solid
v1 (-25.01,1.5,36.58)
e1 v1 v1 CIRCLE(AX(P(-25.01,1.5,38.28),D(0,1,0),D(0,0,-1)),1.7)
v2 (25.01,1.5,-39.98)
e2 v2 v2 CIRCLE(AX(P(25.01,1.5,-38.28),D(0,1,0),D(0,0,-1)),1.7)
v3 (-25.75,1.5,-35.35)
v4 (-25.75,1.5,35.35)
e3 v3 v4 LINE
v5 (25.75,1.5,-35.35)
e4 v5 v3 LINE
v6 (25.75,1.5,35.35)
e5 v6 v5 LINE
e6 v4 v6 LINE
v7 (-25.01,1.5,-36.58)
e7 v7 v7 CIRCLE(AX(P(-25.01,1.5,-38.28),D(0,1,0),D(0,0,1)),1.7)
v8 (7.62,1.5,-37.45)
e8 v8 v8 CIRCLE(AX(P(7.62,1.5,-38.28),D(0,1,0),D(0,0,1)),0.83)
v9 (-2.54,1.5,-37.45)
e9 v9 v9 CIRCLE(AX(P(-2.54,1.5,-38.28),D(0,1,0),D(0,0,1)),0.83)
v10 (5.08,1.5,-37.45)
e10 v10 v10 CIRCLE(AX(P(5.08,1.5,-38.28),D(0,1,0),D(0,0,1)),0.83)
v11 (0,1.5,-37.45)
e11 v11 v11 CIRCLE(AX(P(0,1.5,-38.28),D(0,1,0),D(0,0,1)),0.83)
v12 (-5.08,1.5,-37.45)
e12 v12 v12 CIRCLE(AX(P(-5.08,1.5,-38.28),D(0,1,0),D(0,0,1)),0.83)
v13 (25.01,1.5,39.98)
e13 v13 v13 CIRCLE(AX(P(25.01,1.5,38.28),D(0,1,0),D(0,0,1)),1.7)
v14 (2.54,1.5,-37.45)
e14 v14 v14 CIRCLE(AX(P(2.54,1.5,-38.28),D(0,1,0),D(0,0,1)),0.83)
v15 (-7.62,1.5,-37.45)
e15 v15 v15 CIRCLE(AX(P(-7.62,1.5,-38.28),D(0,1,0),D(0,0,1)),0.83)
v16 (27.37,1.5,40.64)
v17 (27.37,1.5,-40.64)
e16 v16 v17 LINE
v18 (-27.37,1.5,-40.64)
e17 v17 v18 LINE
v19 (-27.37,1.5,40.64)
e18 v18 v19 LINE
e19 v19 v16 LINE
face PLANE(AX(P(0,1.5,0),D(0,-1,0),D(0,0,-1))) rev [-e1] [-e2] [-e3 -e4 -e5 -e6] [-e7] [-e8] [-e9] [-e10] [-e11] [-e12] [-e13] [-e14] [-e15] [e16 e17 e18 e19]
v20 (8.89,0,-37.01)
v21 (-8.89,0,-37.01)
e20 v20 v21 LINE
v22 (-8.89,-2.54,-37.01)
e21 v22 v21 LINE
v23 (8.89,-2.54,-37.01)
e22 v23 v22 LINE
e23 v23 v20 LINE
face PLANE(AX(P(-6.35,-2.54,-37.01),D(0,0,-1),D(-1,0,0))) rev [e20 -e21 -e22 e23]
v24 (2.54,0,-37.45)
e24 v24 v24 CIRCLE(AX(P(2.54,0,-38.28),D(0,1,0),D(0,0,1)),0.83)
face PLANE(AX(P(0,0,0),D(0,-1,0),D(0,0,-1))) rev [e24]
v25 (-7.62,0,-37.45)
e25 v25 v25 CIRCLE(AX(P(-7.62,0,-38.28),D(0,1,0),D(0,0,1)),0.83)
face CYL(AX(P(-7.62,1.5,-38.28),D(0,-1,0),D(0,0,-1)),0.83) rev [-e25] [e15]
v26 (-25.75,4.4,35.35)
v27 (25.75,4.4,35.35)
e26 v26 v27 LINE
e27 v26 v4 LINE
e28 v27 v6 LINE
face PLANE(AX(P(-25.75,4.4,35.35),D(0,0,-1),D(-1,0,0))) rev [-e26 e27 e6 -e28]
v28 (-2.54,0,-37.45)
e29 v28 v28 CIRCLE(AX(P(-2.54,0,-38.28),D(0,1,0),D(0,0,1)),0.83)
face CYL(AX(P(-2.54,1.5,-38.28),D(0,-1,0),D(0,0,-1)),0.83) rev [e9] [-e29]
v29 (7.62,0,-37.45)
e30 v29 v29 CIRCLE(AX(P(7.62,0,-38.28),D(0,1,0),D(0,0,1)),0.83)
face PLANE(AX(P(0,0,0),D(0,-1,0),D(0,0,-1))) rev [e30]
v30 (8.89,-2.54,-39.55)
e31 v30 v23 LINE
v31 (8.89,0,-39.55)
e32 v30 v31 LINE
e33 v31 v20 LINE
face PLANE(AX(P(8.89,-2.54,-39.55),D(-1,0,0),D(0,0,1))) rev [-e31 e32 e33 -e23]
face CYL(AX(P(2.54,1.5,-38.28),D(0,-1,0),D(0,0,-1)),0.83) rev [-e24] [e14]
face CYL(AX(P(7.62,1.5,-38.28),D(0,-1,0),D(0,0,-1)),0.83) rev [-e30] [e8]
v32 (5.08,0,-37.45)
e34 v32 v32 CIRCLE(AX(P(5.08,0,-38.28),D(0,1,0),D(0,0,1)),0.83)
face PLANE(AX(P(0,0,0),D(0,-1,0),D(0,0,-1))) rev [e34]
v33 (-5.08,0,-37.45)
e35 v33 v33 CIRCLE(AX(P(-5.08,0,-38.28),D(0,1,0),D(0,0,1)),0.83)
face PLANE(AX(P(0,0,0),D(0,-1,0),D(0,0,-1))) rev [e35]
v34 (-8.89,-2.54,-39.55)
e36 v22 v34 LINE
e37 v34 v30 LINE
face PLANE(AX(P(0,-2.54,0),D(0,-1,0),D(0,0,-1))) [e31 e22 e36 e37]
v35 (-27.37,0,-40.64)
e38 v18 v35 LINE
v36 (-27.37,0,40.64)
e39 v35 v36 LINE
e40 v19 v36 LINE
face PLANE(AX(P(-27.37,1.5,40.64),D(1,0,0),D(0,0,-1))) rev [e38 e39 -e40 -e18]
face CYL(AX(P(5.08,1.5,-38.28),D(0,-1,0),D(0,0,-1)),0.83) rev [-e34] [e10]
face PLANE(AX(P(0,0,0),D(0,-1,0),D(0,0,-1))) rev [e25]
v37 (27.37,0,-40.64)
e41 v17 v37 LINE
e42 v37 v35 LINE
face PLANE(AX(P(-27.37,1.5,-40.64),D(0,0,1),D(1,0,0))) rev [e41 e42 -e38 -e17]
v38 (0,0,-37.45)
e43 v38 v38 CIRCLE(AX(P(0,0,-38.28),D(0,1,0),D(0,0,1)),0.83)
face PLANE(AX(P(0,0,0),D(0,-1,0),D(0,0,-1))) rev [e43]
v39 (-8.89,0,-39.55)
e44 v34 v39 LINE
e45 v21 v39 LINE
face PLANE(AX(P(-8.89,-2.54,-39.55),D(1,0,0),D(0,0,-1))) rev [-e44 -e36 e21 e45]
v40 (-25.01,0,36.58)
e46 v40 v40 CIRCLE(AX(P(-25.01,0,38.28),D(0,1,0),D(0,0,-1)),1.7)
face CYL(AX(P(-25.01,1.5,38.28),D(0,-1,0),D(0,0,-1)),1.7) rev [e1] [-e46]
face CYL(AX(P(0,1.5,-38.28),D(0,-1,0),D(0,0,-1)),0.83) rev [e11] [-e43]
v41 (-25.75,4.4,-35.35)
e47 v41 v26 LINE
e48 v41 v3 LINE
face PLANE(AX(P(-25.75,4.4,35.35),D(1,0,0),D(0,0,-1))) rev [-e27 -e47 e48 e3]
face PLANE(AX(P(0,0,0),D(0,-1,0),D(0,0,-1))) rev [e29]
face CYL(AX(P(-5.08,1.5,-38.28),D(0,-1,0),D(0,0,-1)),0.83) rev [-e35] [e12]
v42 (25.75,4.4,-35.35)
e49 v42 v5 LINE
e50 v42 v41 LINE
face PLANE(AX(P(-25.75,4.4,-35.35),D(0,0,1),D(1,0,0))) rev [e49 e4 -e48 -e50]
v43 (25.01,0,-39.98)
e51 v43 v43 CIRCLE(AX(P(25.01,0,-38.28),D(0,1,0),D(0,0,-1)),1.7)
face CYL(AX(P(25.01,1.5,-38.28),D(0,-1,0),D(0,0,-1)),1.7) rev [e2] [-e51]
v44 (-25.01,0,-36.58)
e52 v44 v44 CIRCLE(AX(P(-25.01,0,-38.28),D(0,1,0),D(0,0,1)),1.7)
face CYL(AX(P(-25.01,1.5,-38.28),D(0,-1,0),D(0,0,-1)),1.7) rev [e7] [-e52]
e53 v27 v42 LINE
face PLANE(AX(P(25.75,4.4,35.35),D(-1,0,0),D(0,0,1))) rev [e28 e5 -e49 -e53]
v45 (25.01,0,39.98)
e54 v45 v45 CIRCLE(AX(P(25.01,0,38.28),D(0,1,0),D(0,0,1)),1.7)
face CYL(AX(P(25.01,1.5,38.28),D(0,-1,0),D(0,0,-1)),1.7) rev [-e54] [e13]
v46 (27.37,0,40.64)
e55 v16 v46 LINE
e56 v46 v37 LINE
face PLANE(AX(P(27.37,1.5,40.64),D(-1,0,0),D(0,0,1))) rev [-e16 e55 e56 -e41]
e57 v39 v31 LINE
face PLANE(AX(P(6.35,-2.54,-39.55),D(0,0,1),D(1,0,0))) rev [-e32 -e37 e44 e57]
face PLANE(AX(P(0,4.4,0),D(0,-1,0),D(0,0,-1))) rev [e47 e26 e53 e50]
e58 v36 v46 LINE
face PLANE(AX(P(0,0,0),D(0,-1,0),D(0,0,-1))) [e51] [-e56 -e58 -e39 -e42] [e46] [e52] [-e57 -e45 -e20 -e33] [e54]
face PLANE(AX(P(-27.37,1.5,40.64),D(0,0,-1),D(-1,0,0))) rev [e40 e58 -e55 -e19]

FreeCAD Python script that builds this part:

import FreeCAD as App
import Part
import Sketcher
from FreeCAD import Vector


def add_polygon(sketch, points):
    """Adds a closed chain of lines whose ends are joined by coincident constraints."""
    first, n = sketch.GeometryCount, len(points)
    for a, b in zip(points, points[1:] + points[:1]):
        sketch.addGeometry(Part.LineSegment(App.Vector(*a, 0), App.Vector(*b, 0)), False)
    for i in range(n):
        sketch.addConstraint(Sketcher.Constraint("Coincident", first + i, 2, first + (i + 1) % n, 1))

doc = App.newDocument("Part")
params = doc.addObject("Spreadsheet::Sheet", "Params")
for row, (alias, value) in enumerate([
    ("sketch1_diameter", "3.4 mm"),
    ("sketch1_diameter2", "1.66 mm"),
    ("sketch1_width", "54.74 mm"),
    ("sketch1_height", "81.28 mm"),
    ("pad1_length", "1.5 mm"),
    ("sketch2_width", "51.5 mm"),
    ("sketch2_height", "70.7 mm"),
    ("pad2_length", "2.9 mm"),
    ("sketch3_width", "17.78 mm"),
    ("sketch3_height", "2.54 mm"),
    ("pad3_length", "2.54 mm"),
], start=1):
    params.set(f"A{row}", alias)
    params.set(f"B{row}", "=" + value)
    params.setAlias(f"B{row}", alias)

body = doc.addObject("PartDesign::Body", "Body")

# Sketch on XZ plane
sketch1 = body.newObject("Sketcher::SketchObject", "Sketch")
sketch1.AttachmentSupport = (doc.getObject("XZ_Plane"), [""])
sketch1.MapMode = "FlatFace"
add_polygon(sketch1, [(-27.37, -40.64), (-27.37, 40.64), (27.37, 40.64), (27.37, -40.64)])  # lines 0-3
sketch1.addGeometry(Part.Circle(Vector(-25.01, 38.28, 0), Vector(0, 0, 1), 1.7), False)  # 4
sketch1.addGeometry(Part.Circle(Vector(25.01, 38.28, 0), Vector(0, 0, 1), 1.7), False)  # 5
sketch1.addGeometry(Part.Circle(Vector(-25.01, -38.28, 0), Vector(0, 0, 1), 1.7), False)  # 6
sketch1.addGeometry(Part.Circle(Vector(-7.62, -38.28, 0), Vector(0, 0, 1), 0.83), False)  # 7
sketch1.addGeometry(Part.Circle(Vector(-5.08, -38.28, 0), Vector(0, 0, 1), 0.83), False)  # 8
sketch1.addGeometry(Part.Circle(Vector(-2.54, -38.28, 0), Vector(0, 0, 1), 0.83), False)  # 9
sketch1.addGeometry(Part.Circle(Vector(0, -38.28, 0), Vector(0, 0, 1), 0.83), False)  # 10
sketch1.addGeometry(Part.Circle(Vector(2.54, -38.28, 0), Vector(0, 0, 1), 0.83), False)  # 11
sketch1.addGeometry(Part.Circle(Vector(5.08, -38.28, 0), Vector(0, 0, 1), 0.83), False)  # 12
sketch1.addGeometry(Part.Circle(Vector(7.62, -38.28, 0), Vector(0, 0, 1), 0.83), False)  # 13
sketch1.addGeometry(Part.Circle(Vector(25.01, -38.28, 0), Vector(0, 0, 1), 1.7), False)  # 14
sketch1.addConstraint(Sketcher.Constraint("Vertical", 0))
sketch1.addConstraint(Sketcher.Constraint("Horizontal", 1))
sketch1.addConstraint(Sketcher.Constraint("Vertical", 2))
sketch1.addConstraint(Sketcher.Constraint("Horizontal", 3))
sketch1.addConstraint(Sketcher.Constraint("Equal", 4, 5))
sketch1.addConstraint(Sketcher.Constraint("Equal", 5, 6))
sketch1.addConstraint(Sketcher.Constraint("Equal", 7, 8))
sketch1.addConstraint(Sketcher.Constraint("Equal", 8, 9))
sketch1.addConstraint(Sketcher.Constraint("Equal", 9, 10))
sketch1.addConstraint(Sketcher.Constraint("Equal", 10, 11))
sketch1.addConstraint(Sketcher.Constraint("Equal", 11, 12))
sketch1.addConstraint(Sketcher.Constraint("Equal", 12, 13))
sketch1.addConstraint(Sketcher.Constraint("Equal", 6, 14))
sketch1.addConstraint(Sketcher.Constraint("Symmetric", 5, 3, 6, 3, -1, 1))
sketch1.addConstraint(Sketcher.Constraint("Symmetric", 4, 3, 14, 3, -1, 1))
sketch1.addConstraint(Sketcher.Constraint("Symmetric", 0, 2, 2, 2, -1, 1))
sketch1.addConstraint(Sketcher.Constraint("Symmetric", 4, 3, 5, 3, -2))
sketch1.addConstraint(Sketcher.Constraint("Symmetric", 9, 3, 11, 3, -2))
sketch1.addConstraint(Sketcher.Constraint("Symmetric", 8, 3, 12, 3, -2))
sketch1.addConstraint(Sketcher.Constraint("Symmetric", 7, 3, 13, 3, -2))
sketch1.addConstraint(Sketcher.Constraint("PointOnObject", 10, 3, -2))
sketch1.addConstraint(Sketcher.Constraint("Horizontal", 6, 3, 7, 3))
sketch1.addConstraint(Sketcher.Constraint("Horizontal", 7, 3, 8, 3))
sketch1.addConstraint(Sketcher.Constraint("Horizontal", 8, 3, 9, 3))
sketch1.addConstraint(Sketcher.Constraint("Horizontal", 9, 3, 10, 3))
sketch1.addConstraint(Sketcher.Constraint("Diameter", 4, 3.4))
sketch1.addConstraint(Sketcher.Constraint("Diameter", 7, 1.66))
sketch1.addConstraint(Sketcher.Constraint("DistanceX", 1, 1, 1, 2, 54.74))
sketch1.addConstraint(Sketcher.Constraint("DistanceY", 0, 1, 0, 2, 81.28))
sketch1.addConstraint(Sketcher.Constraint("DistanceX", 7, 3, 12, 3, 12.7))
sketch1.addConstraint(Sketcher.Constraint("DistanceX", 4, 3, -1, 1, 25.01))
sketch1.addConstraint(Sketcher.Constraint("DistanceY", -1, 1, 4, 3, 38.28))
sketch1.addConstraint(Sketcher.Constraint("DistanceX", 7, 3, -1, 1, 7.62))
sketch1.addConstraint(Sketcher.Constraint("DistanceX", 9, 3, -1, 1, 2.54))
sketch1.setExpression("Constraints[29]", "Params.sketch1_diameter")
sketch1.setExpression("Constraints[30]", "Params.sketch1_diameter2")
sketch1.setExpression("Constraints[31]", "Params.sketch1_width")
sketch1.setExpression("Constraints[32]", "Params.sketch1_height")
pad1 = body.newObject("PartDesign::Pad", "Pad")
pad1.Profile = sketch1
pad1.setExpression("Length", "Params.pad1_length")
pad1.Reversed = True

# Sketch on XZ plane
sketch2 = body.newObject("Sketcher::SketchObject", "Sketch001")
sketch2.AttachmentSupport = (doc.getObject("XZ_Plane"), [""])
sketch2.MapMode = "FlatFace"
sketch2.AttachmentOffset = App.Placement(Vector(0, 0, -1.5), App.Rotation())
add_polygon(sketch2, [(-25.75, -35.35), (-25.75, 35.35), (25.75, 35.35), (25.75, -35.35)])  # lines 0-3
sketch2.addConstraint(Sketcher.Constraint("Vertical", 0))
sketch2.addConstraint(Sketcher.Constraint("Horizontal", 1))
sketch2.addConstraint(Sketcher.Constraint("Vertical", 2))
sketch2.addConstraint(Sketcher.Constraint("Horizontal", 3))
sketch2.addConstraint(Sketcher.Constraint("Symmetric", 0, 2, 2, 2, -1, 1))
sketch2.addConstraint(Sketcher.Constraint("DistanceX", 1, 1, 1, 2, 51.5))
sketch2.addConstraint(Sketcher.Constraint("DistanceY", 0, 1, 0, 2, 70.7))
sketch2.setExpression("Constraints[9]", "Params.sketch2_width")
sketch2.setExpression("Constraints[10]", "Params.sketch2_height")
pad2 = body.newObject("PartDesign::Pad", "Pad001")
pad2.Profile = sketch2
pad2.setExpression("Length", "Params.pad2_length")
pad2.Reversed = True

# Sketch on XZ plane
sketch3 = body.newObject("Sketcher::SketchObject", "Sketch002")
sketch3.AttachmentSupport = (doc.getObject("XZ_Plane"), [""])
sketch3.MapMode = "FlatFace"
add_polygon(sketch3, [(8.89, -37.01), (-8.89, -37.01), (-8.89, -39.55), (8.89, -39.55)])  # lines 0-3
sketch3.addConstraint(Sketcher.Constraint("Horizontal", 0))
sketch3.addConstraint(Sketcher.Constraint("Vertical", 1))
sketch3.addConstraint(Sketcher.Constraint("Horizontal", 2))
sketch3.addConstraint(Sketcher.Constraint("Vertical", 3))
sketch3.addConstraint(Sketcher.Constraint("DistanceX", 0, 2, 0, 1, 17.78))
sketch3.addConstraint(Sketcher.Constraint("DistanceY", 1, 2, 1, 1, 2.54))
sketch3.addConstraint(Sketcher.Constraint("DistanceX", 0, 2, -1, 1, 8.89))
sketch3.addConstraint(Sketcher.Constraint("DistanceY", 0, 2, -1, 1, 37.01))
sketch3.setExpression("Constraints[8]", "Params.sketch3_width")
sketch3.setExpression("Constraints[9]", "Params.sketch3_height")
pad3 = body.newObject("PartDesign::Pad", "Pad002")
pad3.Profile = sketch3
pad3.setExpression("Length", "Params.pad3_length")

doc.recompute()
